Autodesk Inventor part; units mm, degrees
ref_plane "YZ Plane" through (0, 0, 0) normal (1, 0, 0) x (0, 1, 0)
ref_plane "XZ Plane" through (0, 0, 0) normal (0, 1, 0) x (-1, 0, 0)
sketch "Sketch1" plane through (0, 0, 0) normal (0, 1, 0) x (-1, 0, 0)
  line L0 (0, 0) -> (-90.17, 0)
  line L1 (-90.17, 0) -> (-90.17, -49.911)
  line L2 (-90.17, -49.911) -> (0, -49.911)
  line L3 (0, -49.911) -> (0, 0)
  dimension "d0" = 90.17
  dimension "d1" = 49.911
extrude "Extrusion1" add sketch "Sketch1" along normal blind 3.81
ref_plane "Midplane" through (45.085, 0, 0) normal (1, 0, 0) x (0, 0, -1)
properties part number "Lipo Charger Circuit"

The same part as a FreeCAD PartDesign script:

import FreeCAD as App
import Part
import Sketcher
Q = App.Units.Quantity


def add_polygon(sketch, points):
    """Adds a closed chain of lines whose ends are joined by coincident constraints."""
    first, n = sketch.GeometryCount, len(points)
    for a, b in zip(points, points[1:] + points[:1]):
        sketch.addGeometry(Part.LineSegment(App.Vector(*a, 0), App.Vector(*b, 0)), False)
    for i in range(n):
        sketch.addConstraint(Sketcher.Constraint("Coincident", first + i, 2, first + (i + 1) % n, 1))

doc = App.newDocument("Part")
params = doc.addObject("Spreadsheet::Sheet", "Params")
for row, (alias, value) in enumerate([
    ("sketch1_width", "3.55 in"),
    ("sketch1_height", "1.965 in"),
    ("pad1_length", "0.15 in"),
], start=1):
    params.set(f"A{row}", alias)
    params.set(f"B{row}", "=" + value)
    params.setAlias(f"B{row}", alias)

body = doc.addObject("PartDesign::Body", "Body")

sketch1 = body.newObject("Sketcher::SketchObject", "Sketch")
sketch1.AttachmentSupport = (doc.getObject("XZ_Plane"), [""])
sketch1.MapMode = "FlatFace"
add_polygon(sketch1, [(0, -50), (0, 0), (90, 0), (90, -50)])
sketch1.addConstraint(Sketcher.Constraint("Vertical", 0))
sketch1.addConstraint(Sketcher.Constraint("Horizontal", 1))
sketch1.addConstraint(Sketcher.Constraint("Vertical", 2))
sketch1.addConstraint(Sketcher.Constraint("Horizontal", 3))
sketch1.addConstraint(Sketcher.Constraint("Coincident", 0, 2, -1, 1))
sketch1.addConstraint(Sketcher.Constraint("DistanceX", 1, 1, 1, 2, Q("3.55 in")))
sketch1.addConstraint(Sketcher.Constraint("DistanceY", 0, 1, 0, 2, Q("1.965 in")))
sketch1.setExpression("Constraints[9]", "Params.sketch1_width")
sketch1.setExpression("Constraints[10]", "Params.sketch1_height")
pad1 = body.newObject("PartDesign::Pad", "Pad")
pad1.Profile = sketch1
pad1.setExpression("Length", "Params.pad1_length")
pad1.Reversed = True

doc.recompute()
